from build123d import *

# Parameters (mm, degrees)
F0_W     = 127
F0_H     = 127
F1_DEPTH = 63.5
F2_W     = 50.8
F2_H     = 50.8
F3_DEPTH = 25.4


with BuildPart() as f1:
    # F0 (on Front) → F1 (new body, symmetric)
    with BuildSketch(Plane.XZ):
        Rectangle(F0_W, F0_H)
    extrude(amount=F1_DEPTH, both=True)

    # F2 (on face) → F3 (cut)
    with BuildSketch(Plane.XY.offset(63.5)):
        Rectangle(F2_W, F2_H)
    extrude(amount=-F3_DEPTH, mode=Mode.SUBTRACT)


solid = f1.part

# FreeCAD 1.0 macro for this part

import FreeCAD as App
import Part
import Sketcher
Q = App.Units.Quantity

doc = App.newDocument("Part")
body = doc.addObject("PartDesign::Body", "Body")

sketch1 = body.newObject("Sketcher::SketchObject", "Sketch")
sketch1.AttachmentSupport = (doc.getObject("XZ_Plane"), [""])
sketch1.MapMode = "FlatFace"
sketch1.addGeometry(Part.LineSegment(App.Vector(-64, 64, 0), App.Vector(-64, -64, 0)), False)
sketch1.addGeometry(Part.LineSegment(App.Vector(-64, -64, 0), App.Vector(64, -64, 0)), False)
sketch1.addGeometry(Part.LineSegment(App.Vector(64, -64, 0), App.Vector(64, 64, 0)), False)
sketch1.addGeometry(Part.LineSegment(App.Vector(64, 64, 0), App.Vector(-64, 64, 0)), False)
sketch1.addConstraint(Sketcher.Constraint("Coincident", 0, 2, 1, 1))
sketch1.addConstraint(Sketcher.Constraint("Coincident", 1, 2, 2, 1))
sketch1.addConstraint(Sketcher.Constraint("Coincident", 2, 2, 3, 1))
sketch1.addConstraint(Sketcher.Constraint("Coincident", 3, 2, 0, 1))
sketch1.addConstraint(Sketcher.Constraint("Vertical", 0))
sketch1.addConstraint(Sketcher.Constraint("Horizontal", 1))
sketch1.addConstraint(Sketcher.Constraint("Vertical", 2))
sketch1.addConstraint(Sketcher.Constraint("Horizontal", 3))
sketch1.addConstraint(Sketcher.Constraint("Symmetric", 0, 2, 2, 2, -1, 1))
sketch1.addConstraint(Sketcher.Constraint("Equal", 3, 0))
sketch1.addConstraint(Sketcher.Constraint("DistanceX", 1, 1, 1, 2, Q("5 in")))
pad1 = body.newObject("PartDesign::Pad", "Pad")
pad1.Profile = sketch1
pad1.Length = Q("5 in")
pad1.Midplane = True

sketch2 = body.newObject("Sketcher::SketchObject", "Sketch001")
sketch2.AttachmentSupport = (doc.getObject("XY_Plane"), [""])
sketch2.MapMode = "FlatFace"
sketch2.AttachmentOffset = App.Placement(App.Vector(0, 0, 2.5 * 25.4), App.Rotation())
sketch2.addGeometry(Part.LineSegment(App.Vector(-25, 25, 0), App.Vector(-25, -25, 0)), False)
sketch2.addGeometry(Part.LineSegment(App.Vector(-25, -25, 0), App.Vector(25, -25, 0)), False)
sketch2.addGeometry(Part.LineSegment(App.Vector(25, -25, 0), App.Vector(25, 25, 0)), False)
sketch2.addGeometry(Part.LineSegment(App.Vector(25, 25, 0), App.Vector(-25, 25, 0)), False)
sketch2.addConstraint(Sketcher.Constraint("Coincident", 0, 2, 1, 1))
sketch2.addConstraint(Sketcher.Constraint("Coincident", 1, 2, 2, 1))
sketch2.addConstraint(Sketcher.Constraint("Coincident", 2, 2, 3, 1))
sketch2.addConstraint(Sketcher.Constraint("Coincident", 3, 2, 0, 1))
sketch2.addConstraint(Sketcher.Constraint("Vertical", 0))
sketch2.addConstraint(Sketcher.Constraint("Horizontal", 1))
sketch2.addConstraint(Sketcher.Constraint("Vertical", 2))
sketch2.addConstraint(Sketcher.Constraint("Horizontal", 3))
sketch2.addConstraint(Sketcher.Constraint("Symmetric", 0, 2, 2, 2, -1, 1))
sketch2.addConstraint(Sketcher.Constraint("Equal", 3, 0))
sketch2.addConstraint(Sketcher.Constraint("DistanceX", 1, 1, 1, 2, Q("2 in")))
pocket1 = body.newObject("PartDesign::Pocket", "Pocket")
pocket1.Profile = sketch2
pocket1.Length = Q("1 in")

doc.recompute()
